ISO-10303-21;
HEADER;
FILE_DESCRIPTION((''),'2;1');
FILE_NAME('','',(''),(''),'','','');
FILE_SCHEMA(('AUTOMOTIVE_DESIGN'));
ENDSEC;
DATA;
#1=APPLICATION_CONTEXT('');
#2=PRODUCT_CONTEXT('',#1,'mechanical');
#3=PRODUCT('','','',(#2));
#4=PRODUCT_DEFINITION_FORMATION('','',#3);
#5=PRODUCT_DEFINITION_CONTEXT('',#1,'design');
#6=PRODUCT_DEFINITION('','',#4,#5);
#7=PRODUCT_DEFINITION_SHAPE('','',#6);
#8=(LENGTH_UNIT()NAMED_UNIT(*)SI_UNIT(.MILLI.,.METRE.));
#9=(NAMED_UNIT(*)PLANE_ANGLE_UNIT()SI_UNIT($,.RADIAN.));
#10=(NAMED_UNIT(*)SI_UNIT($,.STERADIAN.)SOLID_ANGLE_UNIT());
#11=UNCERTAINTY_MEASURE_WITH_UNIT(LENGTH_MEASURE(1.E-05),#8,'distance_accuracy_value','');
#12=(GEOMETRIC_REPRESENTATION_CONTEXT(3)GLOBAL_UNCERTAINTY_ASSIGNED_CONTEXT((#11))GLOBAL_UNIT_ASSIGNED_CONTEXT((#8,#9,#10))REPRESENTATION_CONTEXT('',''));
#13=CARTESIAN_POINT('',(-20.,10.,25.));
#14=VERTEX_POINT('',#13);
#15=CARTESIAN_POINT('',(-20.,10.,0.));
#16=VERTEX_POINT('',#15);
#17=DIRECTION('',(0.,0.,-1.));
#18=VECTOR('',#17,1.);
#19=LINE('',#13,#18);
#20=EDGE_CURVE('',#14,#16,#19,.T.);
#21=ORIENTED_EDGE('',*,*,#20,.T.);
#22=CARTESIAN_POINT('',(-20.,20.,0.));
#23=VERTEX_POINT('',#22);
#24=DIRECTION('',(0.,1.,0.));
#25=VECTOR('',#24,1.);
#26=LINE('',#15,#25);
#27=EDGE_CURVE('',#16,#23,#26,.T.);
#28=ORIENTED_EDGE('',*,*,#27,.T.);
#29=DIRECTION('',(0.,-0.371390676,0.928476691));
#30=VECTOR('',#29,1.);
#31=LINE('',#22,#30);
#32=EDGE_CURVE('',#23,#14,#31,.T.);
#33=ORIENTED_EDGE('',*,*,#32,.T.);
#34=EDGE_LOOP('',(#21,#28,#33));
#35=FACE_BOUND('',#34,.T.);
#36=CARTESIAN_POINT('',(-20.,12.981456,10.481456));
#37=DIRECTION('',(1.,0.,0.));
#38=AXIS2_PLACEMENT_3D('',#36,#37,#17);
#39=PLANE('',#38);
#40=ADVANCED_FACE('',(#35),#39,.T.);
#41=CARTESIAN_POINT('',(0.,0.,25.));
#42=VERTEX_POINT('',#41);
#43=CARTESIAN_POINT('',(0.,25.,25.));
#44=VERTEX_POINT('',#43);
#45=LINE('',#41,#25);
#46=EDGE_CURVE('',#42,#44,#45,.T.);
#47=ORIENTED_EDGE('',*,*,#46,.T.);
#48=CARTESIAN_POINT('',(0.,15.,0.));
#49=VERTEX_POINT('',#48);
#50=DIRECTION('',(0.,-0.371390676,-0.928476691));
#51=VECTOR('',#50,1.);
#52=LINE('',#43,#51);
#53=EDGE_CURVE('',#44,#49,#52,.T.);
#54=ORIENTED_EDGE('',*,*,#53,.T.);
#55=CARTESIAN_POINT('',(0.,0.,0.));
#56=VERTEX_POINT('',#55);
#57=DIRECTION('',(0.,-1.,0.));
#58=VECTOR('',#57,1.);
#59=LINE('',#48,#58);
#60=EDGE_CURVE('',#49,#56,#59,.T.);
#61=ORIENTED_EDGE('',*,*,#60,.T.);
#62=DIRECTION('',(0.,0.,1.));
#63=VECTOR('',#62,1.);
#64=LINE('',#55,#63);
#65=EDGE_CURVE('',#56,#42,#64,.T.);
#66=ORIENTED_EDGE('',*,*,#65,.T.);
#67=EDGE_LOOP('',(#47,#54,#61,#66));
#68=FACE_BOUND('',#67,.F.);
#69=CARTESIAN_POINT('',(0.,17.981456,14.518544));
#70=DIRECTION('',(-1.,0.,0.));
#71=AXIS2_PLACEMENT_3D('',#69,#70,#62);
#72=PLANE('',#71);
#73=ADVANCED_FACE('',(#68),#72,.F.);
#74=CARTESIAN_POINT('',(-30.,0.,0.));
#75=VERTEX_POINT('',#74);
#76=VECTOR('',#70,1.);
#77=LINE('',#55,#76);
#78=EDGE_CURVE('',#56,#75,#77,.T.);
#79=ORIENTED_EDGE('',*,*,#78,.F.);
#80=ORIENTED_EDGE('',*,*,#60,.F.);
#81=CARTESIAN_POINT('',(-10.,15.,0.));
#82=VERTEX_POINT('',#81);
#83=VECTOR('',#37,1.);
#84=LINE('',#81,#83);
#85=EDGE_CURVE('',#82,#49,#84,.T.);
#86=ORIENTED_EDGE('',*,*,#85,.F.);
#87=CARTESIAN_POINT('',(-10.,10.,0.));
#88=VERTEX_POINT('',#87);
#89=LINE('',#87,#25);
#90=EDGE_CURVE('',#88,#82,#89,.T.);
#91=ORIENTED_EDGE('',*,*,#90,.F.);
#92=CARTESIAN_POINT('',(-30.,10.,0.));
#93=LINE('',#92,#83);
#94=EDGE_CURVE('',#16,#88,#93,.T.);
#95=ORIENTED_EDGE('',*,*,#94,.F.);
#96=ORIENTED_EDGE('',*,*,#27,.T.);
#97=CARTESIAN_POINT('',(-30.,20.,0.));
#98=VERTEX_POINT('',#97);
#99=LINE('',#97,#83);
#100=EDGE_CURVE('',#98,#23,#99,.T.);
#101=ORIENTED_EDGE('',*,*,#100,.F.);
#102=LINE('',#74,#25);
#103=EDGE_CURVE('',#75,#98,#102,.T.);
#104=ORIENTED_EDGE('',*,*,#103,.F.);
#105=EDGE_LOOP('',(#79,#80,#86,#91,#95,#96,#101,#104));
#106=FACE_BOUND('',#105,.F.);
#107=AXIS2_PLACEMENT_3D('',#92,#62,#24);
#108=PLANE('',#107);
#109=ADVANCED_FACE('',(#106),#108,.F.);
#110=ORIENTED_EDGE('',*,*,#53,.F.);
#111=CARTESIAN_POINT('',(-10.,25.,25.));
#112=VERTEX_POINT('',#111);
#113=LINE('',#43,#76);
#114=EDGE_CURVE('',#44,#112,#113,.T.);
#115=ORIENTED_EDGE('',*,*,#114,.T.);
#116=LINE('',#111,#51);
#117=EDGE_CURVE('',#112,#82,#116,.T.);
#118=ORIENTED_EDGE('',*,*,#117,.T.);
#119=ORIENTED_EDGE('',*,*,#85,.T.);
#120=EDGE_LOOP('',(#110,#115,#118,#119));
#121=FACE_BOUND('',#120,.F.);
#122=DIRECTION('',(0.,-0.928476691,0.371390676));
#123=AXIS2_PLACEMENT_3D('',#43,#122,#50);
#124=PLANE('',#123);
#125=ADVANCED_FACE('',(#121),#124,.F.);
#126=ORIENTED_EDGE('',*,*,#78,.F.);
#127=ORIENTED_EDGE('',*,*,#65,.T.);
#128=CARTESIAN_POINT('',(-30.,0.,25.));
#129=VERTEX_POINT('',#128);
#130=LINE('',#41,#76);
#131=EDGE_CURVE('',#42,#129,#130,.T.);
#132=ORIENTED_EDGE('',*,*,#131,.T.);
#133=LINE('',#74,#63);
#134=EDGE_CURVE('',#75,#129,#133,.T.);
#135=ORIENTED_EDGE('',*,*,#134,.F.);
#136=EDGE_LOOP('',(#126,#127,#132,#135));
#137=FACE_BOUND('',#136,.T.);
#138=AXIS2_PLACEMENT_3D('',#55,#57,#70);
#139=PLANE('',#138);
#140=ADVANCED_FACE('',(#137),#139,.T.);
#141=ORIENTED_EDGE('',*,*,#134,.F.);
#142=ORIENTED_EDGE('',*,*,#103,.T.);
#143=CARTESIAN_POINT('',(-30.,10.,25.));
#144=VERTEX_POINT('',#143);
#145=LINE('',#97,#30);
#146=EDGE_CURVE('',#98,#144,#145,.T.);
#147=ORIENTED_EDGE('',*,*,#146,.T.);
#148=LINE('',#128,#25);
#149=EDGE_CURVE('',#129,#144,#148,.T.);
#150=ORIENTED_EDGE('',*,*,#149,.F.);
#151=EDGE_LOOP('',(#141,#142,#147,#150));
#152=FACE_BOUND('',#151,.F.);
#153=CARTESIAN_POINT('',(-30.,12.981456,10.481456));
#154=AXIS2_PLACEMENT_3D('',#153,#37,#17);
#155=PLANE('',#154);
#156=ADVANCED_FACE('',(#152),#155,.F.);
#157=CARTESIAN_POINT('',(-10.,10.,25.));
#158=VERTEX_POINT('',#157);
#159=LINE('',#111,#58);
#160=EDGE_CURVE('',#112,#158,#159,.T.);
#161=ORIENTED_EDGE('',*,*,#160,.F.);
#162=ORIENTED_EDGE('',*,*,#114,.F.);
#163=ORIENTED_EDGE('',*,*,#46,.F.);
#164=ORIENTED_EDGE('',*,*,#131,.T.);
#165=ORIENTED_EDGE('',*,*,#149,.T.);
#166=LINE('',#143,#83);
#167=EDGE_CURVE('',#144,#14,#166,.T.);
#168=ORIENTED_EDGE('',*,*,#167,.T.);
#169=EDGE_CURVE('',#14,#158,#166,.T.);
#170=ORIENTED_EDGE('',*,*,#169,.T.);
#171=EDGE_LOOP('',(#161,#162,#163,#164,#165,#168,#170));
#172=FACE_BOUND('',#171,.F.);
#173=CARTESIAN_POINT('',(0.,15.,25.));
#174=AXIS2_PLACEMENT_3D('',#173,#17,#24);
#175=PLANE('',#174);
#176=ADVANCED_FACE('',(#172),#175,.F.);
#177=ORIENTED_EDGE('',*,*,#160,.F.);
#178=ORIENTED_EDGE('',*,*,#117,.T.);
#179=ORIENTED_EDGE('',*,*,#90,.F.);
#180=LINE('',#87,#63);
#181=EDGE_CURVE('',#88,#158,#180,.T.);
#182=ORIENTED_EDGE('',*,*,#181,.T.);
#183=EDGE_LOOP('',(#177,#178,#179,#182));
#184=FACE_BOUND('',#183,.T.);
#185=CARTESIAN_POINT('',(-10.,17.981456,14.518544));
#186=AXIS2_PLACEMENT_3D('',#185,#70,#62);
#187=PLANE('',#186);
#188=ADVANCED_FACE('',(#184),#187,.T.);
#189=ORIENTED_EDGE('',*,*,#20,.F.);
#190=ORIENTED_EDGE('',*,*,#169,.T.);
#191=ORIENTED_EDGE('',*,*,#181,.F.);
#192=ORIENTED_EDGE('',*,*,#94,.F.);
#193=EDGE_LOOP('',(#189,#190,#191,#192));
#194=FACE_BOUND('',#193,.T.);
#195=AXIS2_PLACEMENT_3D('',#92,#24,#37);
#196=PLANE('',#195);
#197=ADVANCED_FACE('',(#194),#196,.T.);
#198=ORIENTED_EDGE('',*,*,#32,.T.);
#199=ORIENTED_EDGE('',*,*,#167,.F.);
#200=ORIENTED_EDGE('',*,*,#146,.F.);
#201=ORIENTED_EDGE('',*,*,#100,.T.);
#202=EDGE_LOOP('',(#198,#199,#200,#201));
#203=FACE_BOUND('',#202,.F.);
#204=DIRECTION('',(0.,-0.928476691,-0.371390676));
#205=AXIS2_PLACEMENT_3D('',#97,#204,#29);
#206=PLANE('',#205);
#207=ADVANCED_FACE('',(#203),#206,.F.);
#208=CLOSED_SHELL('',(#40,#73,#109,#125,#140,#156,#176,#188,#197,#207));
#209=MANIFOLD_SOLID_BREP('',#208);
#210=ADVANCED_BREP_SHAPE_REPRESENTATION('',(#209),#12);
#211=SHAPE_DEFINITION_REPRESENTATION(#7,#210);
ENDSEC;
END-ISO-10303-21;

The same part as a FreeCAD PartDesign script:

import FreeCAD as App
import Part
import Sketcher

V = App.Vector
Q = App.Units.Quantity

doc = App.newDocument("Part")
body = doc.addObject("PartDesign::Body", "Body")

# Sketch on XY plane
sketch1 = doc.addObject("Sketcher::SketchObject", "Sketch")
body.addObject(sketch1)
sketch1.AttachmentSupport = (doc.XY_Plane, [""])
sketch1.MapMode = "FlatFace"
sketch1.addGeometry([
    Part.LineSegment(V(-10, 10, 0), V(-30, 10, 0)),  # 0
    Part.LineSegment(V(-30, 10, 0), V(-30, 0, 0)),  # 1
    Part.LineSegment(V(-30, 0, 0), V(0, 0, 0)),  # 2
    Part.LineSegment(V(0, 0, 0), V(0, 15, 0)),  # 3
    Part.LineSegment(V(0, 15, 0), V(-10, 15, 0)),  # 4
    Part.LineSegment(V(-10, 15, 0), V(-10, 10, 0)),  # 5
], False)
sketch1.addConstraint([
    Sketcher.Constraint("Coincident", 0, 2, 1, 1),
    Sketcher.Constraint("Coincident", 1, 2, 2, 1),
    Sketcher.Constraint("Coincident", 2, 2, 3, 1),
    Sketcher.Constraint("Coincident", 3, 2, 4, 1),
    Sketcher.Constraint("Coincident", 4, 2, 5, 1),
    Sketcher.Constraint("Coincident", 5, 2, 0, 1),
    Sketcher.Constraint("Horizontal", 0),
    Sketcher.Constraint("Vertical", 1),
    Sketcher.Constraint("Horizontal", 2),
    Sketcher.Constraint("Vertical", 3),
    Sketcher.Constraint("Horizontal", 4),
    Sketcher.Constraint("Vertical", 5),
    Sketcher.Constraint("Coincident", 2, 2, -1, 1),
    Sketcher.Constraint("Equal", 4, 1),
    Sketcher.Constraint("DistanceX", 0, 2, 0, 1, Q("20 mm")),
    Sketcher.Constraint("DistanceX", 2, 1, 2, 2, Q("30 mm")),
    Sketcher.Constraint("DistanceY", 3, 1, 3, 2, Q("15 mm")),
])
pad1 = doc.addObject("PartDesign::Pad", "Pad")
body.addObject(pad1)
pad1.Profile = sketch1
pad1.Length = 25

# Sketch on YZ plane
sketch2 = doc.addObject("Sketcher::SketchObject", "Sketch001")
body.addObject(sketch2)
sketch2.AttachmentSupport = (doc.YZ_Plane, [""])
sketch2.MapMode = "FlatFace"
sketch2.AttachmentOffset = App.Placement(V(0, 0, -30), App.Rotation())
sketch2.addGeometry([
    Part.LineSegment(V(20, 0, 0), V(10, 0, 0)),
    Part.LineSegment(V(10, 0, 0), V(10, 25, 0)),
    Part.LineSegment(V(10, 25, 0), V(20, 0, 0)),
], False)
sketch2.addConstraint([
    Sketcher.Constraint("Coincident", 0, 2, 1, 1),
    Sketcher.Constraint("Coincident", 1, 2, 2, 1),
    Sketcher.Constraint("Coincident", 2, 2, 0, 1),
    Sketcher.Constraint("Horizontal", 0),
    Sketcher.Constraint("Vertical", 1),
    Sketcher.Constraint("PointOnObject", 0, 2, -1),
    Sketcher.Constraint("DistanceX", 0, 2, 0, 1, Q("10 mm")),
    Sketcher.Constraint("DistanceY", 1, 1, 1, 2, Q("25 mm")),
    Sketcher.Constraint("DistanceX", -1, 1, 0, 2, Q("10 mm")),
])
pad2 = doc.addObject("PartDesign::Pad", "Pad001")
body.addObject(pad2)
pad2.Profile = sketch2
pad2.Length = 10

# Sketch on YZ plane
sketch3 = doc.addObject("Sketcher::SketchObject", "Sketch002")
body.addObject(sketch3)
sketch3.AttachmentSupport = (doc.YZ_Plane, [""])
sketch3.MapMode = "FlatFace"
sketch3.addGeometry([
    Part.LineSegment(V(25, 25, 0), V(15, 25, 0)),
    Part.LineSegment(V(15, 25, 0), V(15, 0, 0)),
    Part.LineSegment(V(15, 0, 0), V(25, 25, 0)),
], False)
sketch3.addConstraint([
    Sketcher.Constraint("Coincident", 0, 2, 1, 1),
    Sketcher.Constraint("Coincident", 1, 2, 2, 1),
    Sketcher.Constraint("Coincident", 2, 2, 0, 1),
    Sketcher.Constraint("Horizontal", 0),
    Sketcher.Constraint("Vertical", 1),
    Sketcher.Constraint("PointOnObject", 1, 2, -1),
    Sketcher.Constraint("DistanceX", 0, 2, 0, 1, Q("10 mm")),
    Sketcher.Constraint("DistanceY", 1, 2, 1, 1, Q("25 mm")),
    Sketcher.Constraint("DistanceX", -1, 1, 0, 2, Q("15 mm")),
])
pad3 = doc.addObject("PartDesign::Pad", "Pad002")
body.addObject(pad3)
pad3.Profile = sketch3
pad3.Length = 10
pad3.Reversed = True

doc.recompute()
